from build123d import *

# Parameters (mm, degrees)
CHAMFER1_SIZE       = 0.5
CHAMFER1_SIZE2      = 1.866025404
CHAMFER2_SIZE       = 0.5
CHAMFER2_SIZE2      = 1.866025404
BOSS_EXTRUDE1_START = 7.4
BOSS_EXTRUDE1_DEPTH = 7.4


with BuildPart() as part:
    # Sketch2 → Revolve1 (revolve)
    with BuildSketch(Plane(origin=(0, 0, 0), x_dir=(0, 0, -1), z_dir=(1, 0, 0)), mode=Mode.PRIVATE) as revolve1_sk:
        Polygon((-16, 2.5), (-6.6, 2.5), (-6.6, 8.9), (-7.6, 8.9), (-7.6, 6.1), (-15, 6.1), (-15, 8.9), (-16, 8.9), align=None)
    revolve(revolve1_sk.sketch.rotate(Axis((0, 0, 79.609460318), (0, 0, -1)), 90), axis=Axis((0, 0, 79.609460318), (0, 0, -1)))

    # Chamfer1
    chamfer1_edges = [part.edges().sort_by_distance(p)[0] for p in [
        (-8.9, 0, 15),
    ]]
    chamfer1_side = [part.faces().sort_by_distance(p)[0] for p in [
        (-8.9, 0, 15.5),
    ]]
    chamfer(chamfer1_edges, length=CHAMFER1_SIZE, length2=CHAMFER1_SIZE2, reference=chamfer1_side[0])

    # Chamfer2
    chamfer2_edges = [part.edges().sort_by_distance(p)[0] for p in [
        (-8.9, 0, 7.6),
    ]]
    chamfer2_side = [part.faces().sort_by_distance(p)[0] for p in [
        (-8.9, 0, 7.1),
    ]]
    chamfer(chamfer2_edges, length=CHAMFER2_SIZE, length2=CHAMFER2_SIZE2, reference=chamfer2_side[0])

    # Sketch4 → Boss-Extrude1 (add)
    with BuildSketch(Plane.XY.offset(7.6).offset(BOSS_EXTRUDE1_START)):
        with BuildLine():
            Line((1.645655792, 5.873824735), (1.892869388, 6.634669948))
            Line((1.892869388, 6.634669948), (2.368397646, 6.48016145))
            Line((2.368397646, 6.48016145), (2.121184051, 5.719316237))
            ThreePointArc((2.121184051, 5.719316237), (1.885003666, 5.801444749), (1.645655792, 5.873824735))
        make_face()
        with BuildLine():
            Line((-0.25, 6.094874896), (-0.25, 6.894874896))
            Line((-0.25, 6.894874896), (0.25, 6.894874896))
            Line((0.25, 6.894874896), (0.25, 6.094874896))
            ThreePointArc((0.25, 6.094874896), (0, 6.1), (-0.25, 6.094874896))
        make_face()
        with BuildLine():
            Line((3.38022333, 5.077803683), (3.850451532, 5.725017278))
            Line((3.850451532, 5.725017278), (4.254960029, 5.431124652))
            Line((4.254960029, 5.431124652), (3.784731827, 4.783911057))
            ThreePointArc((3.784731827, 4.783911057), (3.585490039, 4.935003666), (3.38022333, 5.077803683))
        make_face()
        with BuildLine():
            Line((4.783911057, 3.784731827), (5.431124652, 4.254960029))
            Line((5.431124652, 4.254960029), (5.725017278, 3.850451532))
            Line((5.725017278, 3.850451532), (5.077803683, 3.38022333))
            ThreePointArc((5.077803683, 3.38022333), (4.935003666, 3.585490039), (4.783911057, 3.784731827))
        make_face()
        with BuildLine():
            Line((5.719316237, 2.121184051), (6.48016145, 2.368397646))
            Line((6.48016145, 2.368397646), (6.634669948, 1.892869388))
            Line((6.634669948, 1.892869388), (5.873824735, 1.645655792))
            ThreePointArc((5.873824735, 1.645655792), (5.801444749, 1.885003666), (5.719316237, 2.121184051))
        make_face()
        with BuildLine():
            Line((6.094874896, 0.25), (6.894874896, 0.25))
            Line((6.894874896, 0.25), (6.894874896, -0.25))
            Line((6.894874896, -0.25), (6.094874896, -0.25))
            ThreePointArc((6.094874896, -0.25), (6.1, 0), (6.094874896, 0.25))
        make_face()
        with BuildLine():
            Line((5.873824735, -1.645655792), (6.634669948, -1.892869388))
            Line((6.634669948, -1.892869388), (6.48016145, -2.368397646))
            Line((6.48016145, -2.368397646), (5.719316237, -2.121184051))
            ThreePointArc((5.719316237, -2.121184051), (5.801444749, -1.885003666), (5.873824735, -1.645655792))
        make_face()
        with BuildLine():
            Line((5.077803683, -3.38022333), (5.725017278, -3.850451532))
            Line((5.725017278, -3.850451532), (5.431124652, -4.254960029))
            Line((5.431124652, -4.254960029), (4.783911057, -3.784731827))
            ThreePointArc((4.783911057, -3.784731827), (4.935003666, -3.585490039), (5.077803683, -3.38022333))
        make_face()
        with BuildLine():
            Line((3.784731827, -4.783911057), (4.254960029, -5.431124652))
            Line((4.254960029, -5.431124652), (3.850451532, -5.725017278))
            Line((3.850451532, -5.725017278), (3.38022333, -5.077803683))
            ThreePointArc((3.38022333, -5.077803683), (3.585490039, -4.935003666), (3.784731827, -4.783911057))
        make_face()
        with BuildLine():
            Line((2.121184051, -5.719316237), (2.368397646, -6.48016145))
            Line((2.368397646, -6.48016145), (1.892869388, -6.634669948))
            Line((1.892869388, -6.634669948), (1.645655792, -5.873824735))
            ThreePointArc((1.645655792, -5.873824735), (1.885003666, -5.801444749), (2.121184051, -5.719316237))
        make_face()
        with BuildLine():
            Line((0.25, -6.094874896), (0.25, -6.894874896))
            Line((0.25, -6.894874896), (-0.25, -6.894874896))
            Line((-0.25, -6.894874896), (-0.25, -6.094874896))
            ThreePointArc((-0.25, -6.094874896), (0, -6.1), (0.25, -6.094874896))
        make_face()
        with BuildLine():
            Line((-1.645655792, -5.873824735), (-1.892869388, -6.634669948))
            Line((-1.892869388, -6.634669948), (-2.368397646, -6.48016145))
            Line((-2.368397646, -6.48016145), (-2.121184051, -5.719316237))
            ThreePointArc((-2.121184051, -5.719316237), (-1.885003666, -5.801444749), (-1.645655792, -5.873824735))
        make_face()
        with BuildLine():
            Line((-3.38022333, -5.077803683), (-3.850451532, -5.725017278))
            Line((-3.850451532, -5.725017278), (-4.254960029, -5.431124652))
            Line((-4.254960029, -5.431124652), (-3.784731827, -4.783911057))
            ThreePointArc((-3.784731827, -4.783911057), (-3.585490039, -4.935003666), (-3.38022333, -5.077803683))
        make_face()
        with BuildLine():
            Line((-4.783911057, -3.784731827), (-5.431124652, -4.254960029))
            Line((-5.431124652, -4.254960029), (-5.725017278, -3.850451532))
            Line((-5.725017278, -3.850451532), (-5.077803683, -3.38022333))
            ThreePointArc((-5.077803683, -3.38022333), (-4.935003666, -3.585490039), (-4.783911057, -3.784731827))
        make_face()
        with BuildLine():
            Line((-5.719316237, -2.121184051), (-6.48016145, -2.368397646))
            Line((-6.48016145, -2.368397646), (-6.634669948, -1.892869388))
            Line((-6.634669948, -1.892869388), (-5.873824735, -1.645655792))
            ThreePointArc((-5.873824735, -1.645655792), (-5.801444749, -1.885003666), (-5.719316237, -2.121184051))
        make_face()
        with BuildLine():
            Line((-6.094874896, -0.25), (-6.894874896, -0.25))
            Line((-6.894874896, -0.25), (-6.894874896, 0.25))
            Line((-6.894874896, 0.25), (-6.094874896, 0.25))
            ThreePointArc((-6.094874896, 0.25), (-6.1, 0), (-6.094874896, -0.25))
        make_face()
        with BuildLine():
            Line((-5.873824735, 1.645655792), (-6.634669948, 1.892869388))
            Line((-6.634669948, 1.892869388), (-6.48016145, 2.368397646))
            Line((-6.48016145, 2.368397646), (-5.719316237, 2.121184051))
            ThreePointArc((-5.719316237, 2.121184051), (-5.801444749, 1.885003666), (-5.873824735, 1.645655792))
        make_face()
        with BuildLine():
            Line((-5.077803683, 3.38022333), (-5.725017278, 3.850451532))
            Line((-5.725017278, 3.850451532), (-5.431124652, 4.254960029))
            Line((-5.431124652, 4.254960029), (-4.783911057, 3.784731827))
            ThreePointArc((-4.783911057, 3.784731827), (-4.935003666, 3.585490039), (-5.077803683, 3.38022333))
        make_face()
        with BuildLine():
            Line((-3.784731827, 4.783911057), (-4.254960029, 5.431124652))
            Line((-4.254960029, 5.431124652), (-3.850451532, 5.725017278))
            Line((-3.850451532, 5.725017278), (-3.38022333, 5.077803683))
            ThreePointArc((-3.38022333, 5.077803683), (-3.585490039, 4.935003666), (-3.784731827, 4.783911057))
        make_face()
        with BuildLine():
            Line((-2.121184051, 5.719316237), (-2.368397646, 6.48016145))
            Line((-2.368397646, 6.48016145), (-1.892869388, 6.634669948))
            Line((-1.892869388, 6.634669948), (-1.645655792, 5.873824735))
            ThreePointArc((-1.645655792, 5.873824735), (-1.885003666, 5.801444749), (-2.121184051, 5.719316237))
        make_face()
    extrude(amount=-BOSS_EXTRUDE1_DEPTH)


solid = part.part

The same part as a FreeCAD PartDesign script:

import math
import FreeCAD as App
import Part
import Sketcher
from FreeCAD import Vector
Q = App.Units.Quantity


def edges_at(feature, points):
    """Names of the edges that pass closest to the given points."""
    edges = feature.Shape.Edges
    near = lambda p: min(range(len(edges)), key=lambda i: edges[i].distToShape(Part.Vertex(*p))[0])
    return sorted({f"Edge{near(p) + 1}" for p in points})


def add_polygon(sketch, points):
    """Adds a closed chain of lines whose ends are joined by coincident constraints."""
    first, n = sketch.GeometryCount, len(points)
    for a, b in zip(points, points[1:] + points[:1]):
        sketch.addGeometry(Part.LineSegment(App.Vector(*a, 0), App.Vector(*b, 0)), False)
    for i in range(n):
        sketch.addConstraint(Sketcher.Constraint("Coincident", first + i, 2, first + (i + 1) % n, 1))

doc = App.newDocument("Part")
body = doc.addObject("PartDesign::Body", "Body")

# Sketch on YZ plane
sketch1 = doc.addObject("Sketcher::SketchObject", "Sketch")
body.addObject(sketch1)
sketch1.AttachmentSupport = (doc.YZ_Plane, [""])
sketch1.MapMode = "FlatFace"
add_polygon(sketch1, [(2.5, 16), (2.5, 6.6), (8.9, 6.6), (8.9, 7.6), (6.1, 7.6), (6.1, 15), (8.9, 15), (8.9, 16)])  # lines 0-7
sketch1.addConstraint([
    Sketcher.Constraint("Vertical", 0),
    Sketcher.Constraint("Horizontal", 1),
    Sketcher.Constraint("Vertical", 2),
    Sketcher.Constraint("Horizontal", 3),
    Sketcher.Constraint("Vertical", 4),
    Sketcher.Constraint("Horizontal", 5),
    Sketcher.Constraint("Vertical", 6),
    Sketcher.Constraint("Horizontal", 7),
    Sketcher.Constraint("Vertical", 2, 2, 5, 2),
    Sketcher.Constraint("Equal", 2, 6),
    Sketcher.Constraint("DistanceY", 2, 1, 2, 2, Q("1 mm")),
    Sketcher.Constraint("DistanceX", 1, 1, 1, 2, Q("6.4 mm")),
    Sketcher.Constraint("DistanceX", 3, 2, 3, 1, Q("2.8 mm")),
    Sketcher.Constraint("DistanceY", 0, 2, 0, 1, Q("9.4 mm")),
    Sketcher.Constraint("DistanceY", -1, 1, 4, 2, Q("15 mm")),
    Sketcher.Constraint("DistanceX", -1, 1, 0, 2, Q("2.5 mm")),
])
revolution = doc.addObject("PartDesign::Revolution", "Revolution")
body.addObject(revolution)
revolution.Profile = sketch1
revolution.ReferenceAxis = (sketch1, ["V_Axis"])
revolution.Angle = 360
doc.recompute()

chamfer = doc.addObject("PartDesign::Chamfer", "Chamfer")
body.addObject(chamfer)
chamfer.Base = (revolution, edges_at(revolution, [(-8.9, 0, 15)]))
chamfer.ChamferType = "Two distances"
chamfer.Size = 0.5
chamfer.Size2 = 1.866025
chamfer.FlipDirection = True
doc.recompute()

chamfer2 = doc.addObject("PartDesign::Chamfer", "Chamfer001")
body.addObject(chamfer2)
chamfer2.Base = (chamfer, edges_at(chamfer, [(-8.9, 0, 7.6)]))
chamfer2.ChamferType = "Two distances"
chamfer2.Size = 0.5
chamfer2.Size2 = 1.866025
chamfer2.FlipDirection = True

# Sketch on XY plane
sketch2 = doc.addObject("Sketcher::SketchObject", "Sketch001")
body.addObject(sketch2)
sketch2.AttachmentSupport = (doc.XY_Plane, [""])
sketch2.MapMode = "FlatFace"
sketch2.AttachmentOffset = App.Placement(Vector(0, 0, 15), App.Rotation())
sketch2.addGeometry([
    Part.LineSegment(Vector(1.892869, 6.63467, 0), Vector(1.645656, 5.873825, 0)),  # 0
    Part.ArcOfCircle(Part.Circle(Vector(0, 0, 0), Vector(0, 0, 1), 6.1), math.radians(69.651155), math.radians(74.348845)),  # 1
    Part.LineSegment(Vector(2.121184, 5.719316, 0), Vector(2.368398, 6.480161, 0)),  # 2
    Part.LineSegment(Vector(2.368398, 6.480161, 0), Vector(1.892869, 6.63467, 0)),  # 3
    Part.LineSegment(Vector(-0.25, 6.894875, 0), Vector(-0.25, 6.094875, 0)),  # 4
    Part.ArcOfCircle(Part.Circle(Vector(0, 0, 0), Vector(0, 0, 1), 6.1), math.radians(87.651154), math.radians(92.348846)),  # 5
    Part.LineSegment(Vector(0.25, 6.094875, 0), Vector(0.25, 6.894875, 0)),  # 6
    Part.LineSegment(Vector(0.25, 6.894875, 0), Vector(-0.25, 6.894875, 0)),  # 7
    Part.LineSegment(Vector(3.850452, 5.725017, 0), Vector(3.380223, 5.077804, 0)),  # 8
    Part.ArcOfCircle(Part.Circle(Vector(0, 0, 0), Vector(0, 0, 1), 6.1), math.radians(51.651154), math.radians(56.348846)),  # 9
    Part.LineSegment(Vector(3.784732, 4.783911, 0), Vector(4.25496, 5.431125, 0)),  # 10
    Part.LineSegment(Vector(4.25496, 5.431125, 0), Vector(3.850452, 5.725017, 0)),  # 11
    Part.LineSegment(Vector(5.431125, 4.25496, 0), Vector(4.783911, 3.784732, 0)),  # 12
    Part.ArcOfCircle(Part.Circle(Vector(0, 0, 0), Vector(0, 0, 1), 6.1), math.radians(33.651154), math.radians(38.348846)),  # 13
    Part.LineSegment(Vector(5.077804, 3.380223, 0), Vector(5.725017, 3.850452, 0)),  # 14
    Part.LineSegment(Vector(5.725017, 3.850452, 0), Vector(5.431125, 4.25496, 0)),  # 15
    Part.LineSegment(Vector(6.480161, 2.368398, 0), Vector(5.719316, 2.121184, 0)),  # 16
    Part.ArcOfCircle(Part.Circle(Vector(0, 0, 0), Vector(0, 0, 1), 6.1), math.radians(15.651155), math.radians(20.348845)),  # 17
    Part.LineSegment(Vector(5.873825, 1.645656, 0), Vector(6.63467, 1.892869, 0)),  # 18
    Part.LineSegment(Vector(6.63467, 1.892869, 0), Vector(6.480161, 2.368398, 0)),  # 19
    Part.LineSegment(Vector(6.894875, 0.25, 0), Vector(6.094875, 0.25, 0)),  # 20
    Part.ArcOfCircle(Part.Circle(Vector(0, 0, 0), Vector(0, 0, 1), 6.1), math.radians(-2.348846), math.radians(2.348846)),  # 21
    Part.LineSegment(Vector(6.094875, -0.25, 0), Vector(6.894875, -0.25, 0)),  # 22
    Part.LineSegment(Vector(6.894875, -0.25, 0), Vector(6.894875, 0.25, 0)),  # 23
    Part.LineSegment(Vector(6.63467, -1.892869, 0), Vector(5.873825, -1.645656, 0)),  # 24
    Part.ArcOfCircle(Part.Circle(Vector(0, 0, 0), Vector(0, 0, 1), 6.1), math.radians(-20.348845), math.radians(-15.651155)),  # 25
    Part.LineSegment(Vector(5.719316, -2.121184, 0), Vector(6.480161, -2.368398, 0)),  # 26
    Part.LineSegment(Vector(6.480161, -2.368398, 0), Vector(6.63467, -1.892869, 0)),  # 27
    Part.LineSegment(Vector(5.725017, -3.850452, 0), Vector(5.077804, -3.380223, 0)),  # 28
    Part.ArcOfCircle(Part.Circle(Vector(0, 0, 0), Vector(0, 0, 1), 6.1), math.radians(-38.348846), math.radians(-33.651154)),  # 29
    Part.LineSegment(Vector(4.783911, -3.784732, 0), Vector(5.431125, -4.25496, 0)),  # 30
    Part.LineSegment(Vector(5.431125, -4.25496, 0), Vector(5.725017, -3.850452, 0)),  # 31
    Part.LineSegment(Vector(4.25496, -5.431125, 0), Vector(3.784732, -4.783911, 0)),  # 32
    Part.ArcOfCircle(Part.Circle(Vector(0, 0, 0), Vector(0, 0, 1), 6.1), math.radians(-56.348846), math.radians(-51.651154)),  # 33
    Part.LineSegment(Vector(3.380223, -5.077804, 0), Vector(3.850452, -5.725017, 0)),  # 34
    Part.LineSegment(Vector(3.850452, -5.725017, 0), Vector(4.25496, -5.431125, 0)),  # 35
    Part.LineSegment(Vector(2.368398, -6.480161, 0), Vector(2.121184, -5.719316, 0)),  # 36
    Part.ArcOfCircle(Part.Circle(Vector(0, 0, 0), Vector(0, 0, 1), 6.1), math.radians(-74.348845), math.radians(-69.651155)),  # 37
    Part.LineSegment(Vector(1.645656, -5.873825, 0), Vector(1.892869, -6.63467, 0)),  # 38
    Part.LineSegment(Vector(1.892869, -6.63467, 0), Vector(2.368398, -6.480161, 0)),  # 39
    Part.LineSegment(Vector(0.25, -6.894875, 0), Vector(0.25, -6.094875, 0)),  # 40
    Part.ArcOfCircle(Part.Circle(Vector(0, 0, 0), Vector(0, 0, 1), 6.1), math.radians(-92.348846), math.radians(-87.651154)),  # 41
    Part.LineSegment(Vector(-0.25, -6.094875, 0), Vector(-0.25, -6.894875, 0)),  # 42
    Part.LineSegment(Vector(-0.25, -6.894875, 0), Vector(0.25, -6.894875, 0)),  # 43
    Part.LineSegment(Vector(-1.892869, -6.63467, 0), Vector(-1.645656, -5.873825, 0)),  # 44
    Part.ArcOfCircle(Part.Circle(Vector(0, 0, 0), Vector(0, 0, 1), 6.1), math.radians(-110.348845), math.radians(-105.651155)),  # 45
    Part.LineSegment(Vector(-2.121184, -5.719316, 0), Vector(-2.368398, -6.480161, 0)),  # 46
    Part.LineSegment(Vector(-2.368398, -6.480161, 0), Vector(-1.892869, -6.63467, 0)),  # 47
    Part.LineSegment(Vector(-3.850452, -5.725017, 0), Vector(-3.380223, -5.077804, 0)),  # 48
    Part.ArcOfCircle(Part.Circle(Vector(0, 0, 0), Vector(0, 0, 1), 6.1), math.radians(-128.348846), math.radians(-123.651154)),  # 49
    Part.LineSegment(Vector(-3.784732, -4.783911, 0), Vector(-4.25496, -5.431125, 0)),  # 50
    Part.LineSegment(Vector(-4.25496, -5.431125, 0), Vector(-3.850452, -5.725017, 0)),  # 51
    Part.LineSegment(Vector(-5.431125, -4.25496, 0), Vector(-4.783911, -3.784732, 0)),  # 52
    Part.ArcOfCircle(Part.Circle(Vector(0, 0, 0), Vector(0, 0, 1), 6.1), math.radians(-146.348846), math.radians(-141.651154)),  # 53
    Part.LineSegment(Vector(-5.077804, -3.380223, 0), Vector(-5.725017, -3.850452, 0)),  # 54
    Part.LineSegment(Vector(-5.725017, -3.850452, 0), Vector(-5.431125, -4.25496, 0)),  # 55
    Part.LineSegment(Vector(-6.480161, -2.368398, 0), Vector(-5.719316, -2.121184, 0)),  # 56
    Part.ArcOfCircle(Part.Circle(Vector(0, 0, 0), Vector(0, 0, 1), 6.1), math.radians(-164.348845), math.radians(-159.651155)),  # 57
    Part.LineSegment(Vector(-5.873825, -1.645656, 0), Vector(-6.63467, -1.892869, 0)),  # 58
    Part.LineSegment(Vector(-6.63467, -1.892869, 0), Vector(-6.480161, -2.368398, 0)),  # 59
    Part.LineSegment(Vector(-6.894875, -0.25, 0), Vector(-6.094875, -0.25, 0)),  # 60
    Part.ArcOfCircle(Part.Circle(Vector(0, 0, 0), Vector(0, 0, 1), 6.1), math.radians(177.651154), math.radians(182.348846)),  # 61
    Part.LineSegment(Vector(-6.094875, 0.25, 0), Vector(-6.894875, 0.25, 0)),  # 62
    Part.LineSegment(Vector(-6.894875, 0.25, 0), Vector(-6.894875, -0.25, 0)),  # 63
    Part.LineSegment(Vector(-6.63467, 1.892869, 0), Vector(-5.873825, 1.645656, 0)),  # 64
    Part.ArcOfCircle(Part.Circle(Vector(0, 0, 0), Vector(0, 0, 1), 6.1), math.radians(159.651155), math.radians(164.348845)),  # 65
    Part.LineSegment(Vector(-5.719316, 2.121184, 0), Vector(-6.480161, 2.368398, 0)),  # 66
    Part.LineSegment(Vector(-6.480161, 2.368398, 0), Vector(-6.63467, 1.892869, 0)),  # 67
    Part.LineSegment(Vector(-5.725017, 3.850452, 0), Vector(-5.077804, 3.380223, 0)),  # 68
    Part.ArcOfCircle(Part.Circle(Vector(0, 0, 0), Vector(0, 0, 1), 6.1), math.radians(141.651154), math.radians(146.348846)),  # 69
    Part.LineSegment(Vector(-4.783911, 3.784732, 0), Vector(-5.431125, 4.25496, 0)),  # 70
    Part.LineSegment(Vector(-5.431125, 4.25496, 0), Vector(-5.725017, 3.850452, 0)),  # 71
    Part.LineSegment(Vector(-4.25496, 5.431125, 0), Vector(-3.784732, 4.783911, 0)),  # 72
    Part.ArcOfCircle(Part.Circle(Vector(0, 0, 0), Vector(0, 0, 1), 6.1), math.radians(123.651154), math.radians(128.348846)),  # 73
    Part.LineSegment(Vector(-3.380223, 5.077804, 0), Vector(-3.850452, 5.725017, 0)),  # 74
    Part.LineSegment(Vector(-3.850452, 5.725017, 0), Vector(-4.25496, 5.431125, 0)),  # 75
    Part.LineSegment(Vector(-2.368398, 6.480161, 0), Vector(-2.121184, 5.719316, 0)),  # 76
    Part.ArcOfCircle(Part.Circle(Vector(0, 0, 0), Vector(0, 0, 1), 6.1), math.radians(105.651155), math.radians(110.348845)),  # 77
    Part.LineSegment(Vector(-1.645656, 5.873825, 0), Vector(-1.892869, 6.63467, 0)),  # 78
    Part.LineSegment(Vector(-1.892869, 6.63467, 0), Vector(-2.368398, 6.480161, 0)),  # 79
], False)
sketch2.addConstraint([
    Sketcher.Constraint("Coincident", 0, 2, 1, 2),
    Sketcher.Constraint("Coincident", 1, 1, 2, 1),
    Sketcher.Constraint("Coincident", 2, 2, 3, 1),
    Sketcher.Constraint("Coincident", 3, 2, 0, 1),
    Sketcher.Constraint("Coincident", 4, 2, 5, 2),
    Sketcher.Constraint("Coincident", 5, 1, 6, 1),
    Sketcher.Constraint("Coincident", 6, 2, 7, 1),
    Sketcher.Constraint("Coincident", 7, 2, 4, 1),
    Sketcher.Constraint("Coincident", 8, 2, 9, 2),
    Sketcher.Constraint("Coincident", 9, 1, 10, 1),
    Sketcher.Constraint("Coincident", 10, 2, 11, 1),
    Sketcher.Constraint("Coincident", 11, 2, 8, 1),
    Sketcher.Constraint("Coincident", 12, 2, 13, 2),
    Sketcher.Constraint("Coincident", 13, 1, 14, 1),
    Sketcher.Constraint("Coincident", 14, 2, 15, 1),
    Sketcher.Constraint("Coincident", 15, 2, 12, 1),
    Sketcher.Constraint("Coincident", 16, 2, 17, 2),
    Sketcher.Constraint("Coincident", 17, 1, 18, 1),
    Sketcher.Constraint("Coincident", 18, 2, 19, 1),
    Sketcher.Constraint("Coincident", 19, 2, 16, 1),
    Sketcher.Constraint("Coincident", 20, 2, 21, 2),
    Sketcher.Constraint("Coincident", 21, 1, 22, 1),
    Sketcher.Constraint("Coincident", 22, 2, 23, 1),
    Sketcher.Constraint("Coincident", 23, 2, 20, 1),
    Sketcher.Constraint("Coincident", 24, 2, 25, 2),
    Sketcher.Constraint("Coincident", 25, 1, 26, 1),
    Sketcher.Constraint("Coincident", 26, 2, 27, 1),
    Sketcher.Constraint("Coincident", 27, 2, 24, 1),
    Sketcher.Constraint("Coincident", 28, 2, 29, 2),
    Sketcher.Constraint("Coincident", 29, 1, 30, 1),
    Sketcher.Constraint("Coincident", 30, 2, 31, 1),
    Sketcher.Constraint("Coincident", 31, 2, 28, 1),
    Sketcher.Constraint("Coincident", 32, 2, 33, 2),
    Sketcher.Constraint("Coincident", 33, 1, 34, 1),
    Sketcher.Constraint("Coincident", 34, 2, 35, 1),
    Sketcher.Constraint("Coincident", 35, 2, 32, 1),
    Sketcher.Constraint("Coincident", 36, 2, 37, 2),
    Sketcher.Constraint("Coincident", 37, 1, 38, 1),
    Sketcher.Constraint("Coincident", 38, 2, 39, 1),
    Sketcher.Constraint("Coincident", 39, 2, 36, 1),
    Sketcher.Constraint("Coincident", 40, 2, 41, 2),
    Sketcher.Constraint("Coincident", 41, 1, 42, 1),
    Sketcher.Constraint("Coincident", 42, 2, 43, 1),
    Sketcher.Constraint("Coincident", 43, 2, 40, 1),
    Sketcher.Constraint("Coincident", 44, 2, 45, 2),
    Sketcher.Constraint("Coincident", 45, 1, 46, 1),
    Sketcher.Constraint("Coincident", 46, 2, 47, 1),
    Sketcher.Constraint("Coincident", 47, 2, 44, 1),
    Sketcher.Constraint("Coincident", 48, 2, 49, 2),
    Sketcher.Constraint("Coincident", 49, 1, 50, 1),
    Sketcher.Constraint("Coincident", 50, 2, 51, 1),
    Sketcher.Constraint("Coincident", 51, 2, 48, 1),
    Sketcher.Constraint("Coincident", 52, 2, 53, 2),
    Sketcher.Constraint("Coincident", 53, 1, 54, 1),
    Sketcher.Constraint("Coincident", 54, 2, 55, 1),
    Sketcher.Constraint("Coincident", 55, 2, 52, 1),
    Sketcher.Constraint("Coincident", 56, 2, 57, 2),
    Sketcher.Constraint("Coincident", 57, 1, 58, 1),
    Sketcher.Constraint("Coincident", 58, 2, 59, 1),
    Sketcher.Constraint("Coincident", 59, 2, 56, 1),
    Sketcher.Constraint("Coincident", 60, 2, 61, 2),
    Sketcher.Constraint("Coincident", 61, 1, 62, 1),
    Sketcher.Constraint("Coincident", 62, 2, 63, 1),
    Sketcher.Constraint("Coincident", 63, 2, 60, 1),
    Sketcher.Constraint("Coincident", 64, 2, 65, 2),
    Sketcher.Constraint("Coincident", 65, 1, 66, 1),
    Sketcher.Constraint("Coincident", 66, 2, 67, 1),
    Sketcher.Constraint("Coincident", 67, 2, 64, 1),
    Sketcher.Constraint("Coincident", 68, 2, 69, 2),
    Sketcher.Constraint("Coincident", 69, 1, 70, 1),
    Sketcher.Constraint("Coincident", 70, 2, 71, 1),
    Sketcher.Constraint("Coincident", 71, 2, 68, 1),
    Sketcher.Constraint("Coincident", 72, 2, 73, 2),
    Sketcher.Constraint("Coincident", 73, 1, 74, 1),
    Sketcher.Constraint("Coincident", 74, 2, 75, 1),
    Sketcher.Constraint("Coincident", 75, 2, 72, 1),
    Sketcher.Constraint("Coincident", 76, 2, 77, 2),
    Sketcher.Constraint("Coincident", 77, 1, 78, 1),
    Sketcher.Constraint("Coincident", 78, 2, 79, 1),
    Sketcher.Constraint("Coincident", 79, 2, 76, 1),
    Sketcher.Constraint("Vertical", 4),
    Sketcher.Constraint("Vertical", 6),
    Sketcher.Constraint("Horizontal", 7),
    Sketcher.Constraint("Horizontal", 20),
    Sketcher.Constraint("Horizontal", 22),
    Sketcher.Constraint("Vertical", 23),
    Sketcher.Constraint("Vertical", 40),
    Sketcher.Constraint("Vertical", 42),
    Sketcher.Constraint("Horizontal", 43),
    Sketcher.Constraint("Horizontal", 60),
    Sketcher.Constraint("Horizontal", 62),
    Sketcher.Constraint("Vertical", 63),
    Sketcher.Constraint("Coincident", 1, 3, -1, 1),
    Sketcher.Constraint("Coincident", 5, 3, -1, 1),
    Sketcher.Constraint("Coincident", 9, 3, -1, 1),
    Sketcher.Constraint("Coincident", 13, 3, -1, 1),
    Sketcher.Constraint("Coincident", 17, 3, -1, 1),
    Sketcher.Constraint("Coincident", 21, 3, -1, 1),
    Sketcher.Constraint("Coincident", 25, 3, -1, 1),
    Sketcher.Constraint("Coincident", 29, 3, -1, 1),
    Sketcher.Constraint("Coincident", 33, 3, -1, 1),
    Sketcher.Constraint("Coincident", 37, 3, -1, 1),
    Sketcher.Constraint("Coincident", 41, 3, -1, 1),
    Sketcher.Constraint("Coincident", 45, 3, -1, 1),
    Sketcher.Constraint("Coincident", 49, 3, -1, 1),
    Sketcher.Constraint("Coincident", 53, 3, -1, 1),
    Sketcher.Constraint("Coincident", 57, 3, -1, 1),
    Sketcher.Constraint("Coincident", 61, 3, -1, 1),
    Sketcher.Constraint("Coincident", 65, 3, -1, 1),
    Sketcher.Constraint("Coincident", 69, 3, -1, 1),
    Sketcher.Constraint("Coincident", 73, 3, -1, 1),
    Sketcher.Constraint("Coincident", 77, 3, -1, 1),
    Sketcher.Constraint("Equal", 1, 5),
    Sketcher.Constraint("Equal", 5, 9),
    Sketcher.Constraint("Equal", 9, 13),
    Sketcher.Constraint("Equal", 13, 17),
    Sketcher.Constraint("Equal", 17, 21),
    Sketcher.Constraint("Equal", 21, 25),
    Sketcher.Constraint("Equal", 25, 29),
    Sketcher.Constraint("Equal", 29, 33),
    Sketcher.Constraint("Equal", 33, 37),
    Sketcher.Constraint("Equal", 37, 41),
    Sketcher.Constraint("Equal", 41, 45),
    Sketcher.Constraint("Equal", 45, 49),
    Sketcher.Constraint("Equal", 49, 53),
    Sketcher.Constraint("Equal", 53, 57),
    Sketcher.Constraint("Equal", 57, 61),
    Sketcher.Constraint("Equal", 61, 65),
    Sketcher.Constraint("Equal", 65, 69),
    Sketcher.Constraint("Equal", 69, 73),
    Sketcher.Constraint("Equal", 73, 77),
    Sketcher.Constraint("Symmetric", 6, 2, 42, 2, -1, 1),
    Sketcher.Constraint("Symmetric", 2, 2, 46, 2, -1, 1),
    Sketcher.Constraint("Symmetric", 3, 2, 47, 2, -1, 1),
    Sketcher.Constraint("Symmetric", 10, 2, 50, 2, -1, 1),
    Sketcher.Constraint("Symmetric", 11, 2, 51, 2, -1, 1),
    Sketcher.Constraint("Symmetric", 14, 2, 54, 2, -1, 1),
    Sketcher.Constraint("Symmetric", 15, 2, 55, 2, -1, 1),
    Sketcher.Constraint("Symmetric", 18, 2, 58, 2, -1, 1),
    Sketcher.Constraint("Symmetric", 19, 2, 59, 2, -1, 1),
    Sketcher.Constraint("Symmetric", 22, 2, 62, 2, -1, 1),
    Sketcher.Constraint("Symmetric", 26, 2, 66, 2, -1, 1),
    Sketcher.Constraint("Symmetric", 27, 2, 67, 2, -1, 1),
    Sketcher.Constraint("Symmetric", 30, 2, 70, 2, -1, 1),
    Sketcher.Constraint("Symmetric", 31, 2, 71, 2, -1, 1),
    Sketcher.Constraint("Symmetric", 34, 2, 74, 2, -1, 1),
    Sketcher.Constraint("Symmetric", 35, 2, 75, 2, -1, 1),
    Sketcher.Constraint("Symmetric", 38, 2, 78, 2, -1, 1),
    Sketcher.Constraint("Symmetric", 39, 2, 79, 2, -1, 1),
    Sketcher.Constraint("Symmetric", 39, 2, 46, 2, -2),
    Sketcher.Constraint("Symmetric", 38, 2, 47, 2, -2),
    Sketcher.Constraint("Symmetric", 35, 2, 50, 2, -2),
    Sketcher.Constraint("Symmetric", 34, 2, 51, 2, -2),
    Sketcher.Constraint("Symmetric", 31, 2, 54, 2, -2),
    Sketcher.Constraint("Symmetric", 30, 2, 55, 2, -2),
    Sketcher.Constraint("Symmetric", 27, 2, 58, 2, -2),
    Sketcher.Constraint("Symmetric", 26, 2, 59, 2, -2),
    Sketcher.Constraint("Parallel", 0, 2),
    Sketcher.Constraint("Perpendicular", 2, 3),
    Sketcher.Constraint("Parallel", 8, 10),
    Sketcher.Constraint("Perpendicular", 10, 11),
    Sketcher.Constraint("Parallel", 12, 14),
    Sketcher.Constraint("Perpendicular", 14, 15),
    Sketcher.Constraint("Parallel", 16, 18),
    Sketcher.Constraint("Perpendicular", 18, 19),
    Sketcher.Constraint("Parallel", 3, 24),
    Sketcher.Constraint("Parallel", 24, 26),
    Sketcher.Constraint("Perpendicular", 26, 27),
    Sketcher.Constraint("Parallel", 11, 28),
    Sketcher.Constraint("Parallel", 28, 30),
    Sketcher.Constraint("Perpendicular", 30, 31),
    Sketcher.Constraint("Parallel", 15, 32),
    Sketcher.Constraint("Parallel", 32, 34),
    Sketcher.Constraint("Parallel", 19, 36),
    Sketcher.Constraint("Parallel", 36, 38),
    Sketcher.Constraint("Parallel", 27, 44),
    Sketcher.Constraint("Parallel", 44, 46),
    Sketcher.Constraint("Parallel", 31, 48),
    Sketcher.Constraint("Parallel", 48, 50),
    Sketcher.Constraint("Parallel", 35, 52),
    Sketcher.Constraint("Parallel", 52, 54),
    Sketcher.Constraint("Parallel", 39, 56),
    Sketcher.Constraint("Parallel", 56, 58),
    Sketcher.Constraint("Parallel", 47, 64),
    Sketcher.Constraint("Parallel", 64, 66),
    Sketcher.Constraint("Parallel", 51, 68),
    Sketcher.Constraint("Parallel", 68, 70),
    Sketcher.Constraint("Parallel", 55, 72),
    Sketcher.Constraint("Parallel", 72, 74),
    Sketcher.Constraint("Parallel", 59, 76),
    Sketcher.Constraint("Parallel", 76, 78),
    Sketcher.Constraint("Horizontal", 4, 2, 5, 1),
    Sketcher.Constraint("Horizontal", 40, 2, 41, 1),
    Sketcher.Constraint("Horizontal", 22, 2, 60, 2),
    Sketcher.Constraint("Horizontal", 23, 2, 61, 1),
    Sketcher.Constraint("Equal", 62, 4),
    Sketcher.Constraint("Equal", 43, 23),
    Sketcher.Constraint("Equal", 0, 2),
    Sketcher.Constraint("Equal", 2, 8),
    Sketcher.Constraint("Equal", 8, 10),
    Sketcher.Constraint("Equal", 3, 11),
    Sketcher.Constraint("Equal", 10, 12),
    Sketcher.Constraint("Equal", 12, 14),
    Sketcher.Constraint("Equal", 11, 15),
    Sketcher.Constraint("Equal", 14, 16),
    Sketcher.Constraint("Equal", 16, 18),
    Sketcher.Constraint("Equal", 15, 19),
    Sketcher.Constraint("Radius", 1, Q("6.1 mm")),
    Sketcher.Constraint("Angle", 0, Q("-108 deg")),
    Sketcher.Constraint("Angle", 8, Q("-126 deg")),
    Sketcher.Constraint("DistanceX", 7, 2, 7, 1, Q("0.5 mm")),
    Sketcher.Constraint("DistanceX", 20, 2, 20, 1, Q("0.8 mm")),
    Sketcher.Constraint("Distance", 0, Q("0.8 mm")),
    Sketcher.Constraint("Distance", 3, Q("0.5 mm")),
])
pad1 = doc.addObject("PartDesign::Pad", "Pad")
body.addObject(pad1)
pad1.Profile = sketch2
pad1.Length = 7.4
pad1.Reversed = True

doc.recompute()
